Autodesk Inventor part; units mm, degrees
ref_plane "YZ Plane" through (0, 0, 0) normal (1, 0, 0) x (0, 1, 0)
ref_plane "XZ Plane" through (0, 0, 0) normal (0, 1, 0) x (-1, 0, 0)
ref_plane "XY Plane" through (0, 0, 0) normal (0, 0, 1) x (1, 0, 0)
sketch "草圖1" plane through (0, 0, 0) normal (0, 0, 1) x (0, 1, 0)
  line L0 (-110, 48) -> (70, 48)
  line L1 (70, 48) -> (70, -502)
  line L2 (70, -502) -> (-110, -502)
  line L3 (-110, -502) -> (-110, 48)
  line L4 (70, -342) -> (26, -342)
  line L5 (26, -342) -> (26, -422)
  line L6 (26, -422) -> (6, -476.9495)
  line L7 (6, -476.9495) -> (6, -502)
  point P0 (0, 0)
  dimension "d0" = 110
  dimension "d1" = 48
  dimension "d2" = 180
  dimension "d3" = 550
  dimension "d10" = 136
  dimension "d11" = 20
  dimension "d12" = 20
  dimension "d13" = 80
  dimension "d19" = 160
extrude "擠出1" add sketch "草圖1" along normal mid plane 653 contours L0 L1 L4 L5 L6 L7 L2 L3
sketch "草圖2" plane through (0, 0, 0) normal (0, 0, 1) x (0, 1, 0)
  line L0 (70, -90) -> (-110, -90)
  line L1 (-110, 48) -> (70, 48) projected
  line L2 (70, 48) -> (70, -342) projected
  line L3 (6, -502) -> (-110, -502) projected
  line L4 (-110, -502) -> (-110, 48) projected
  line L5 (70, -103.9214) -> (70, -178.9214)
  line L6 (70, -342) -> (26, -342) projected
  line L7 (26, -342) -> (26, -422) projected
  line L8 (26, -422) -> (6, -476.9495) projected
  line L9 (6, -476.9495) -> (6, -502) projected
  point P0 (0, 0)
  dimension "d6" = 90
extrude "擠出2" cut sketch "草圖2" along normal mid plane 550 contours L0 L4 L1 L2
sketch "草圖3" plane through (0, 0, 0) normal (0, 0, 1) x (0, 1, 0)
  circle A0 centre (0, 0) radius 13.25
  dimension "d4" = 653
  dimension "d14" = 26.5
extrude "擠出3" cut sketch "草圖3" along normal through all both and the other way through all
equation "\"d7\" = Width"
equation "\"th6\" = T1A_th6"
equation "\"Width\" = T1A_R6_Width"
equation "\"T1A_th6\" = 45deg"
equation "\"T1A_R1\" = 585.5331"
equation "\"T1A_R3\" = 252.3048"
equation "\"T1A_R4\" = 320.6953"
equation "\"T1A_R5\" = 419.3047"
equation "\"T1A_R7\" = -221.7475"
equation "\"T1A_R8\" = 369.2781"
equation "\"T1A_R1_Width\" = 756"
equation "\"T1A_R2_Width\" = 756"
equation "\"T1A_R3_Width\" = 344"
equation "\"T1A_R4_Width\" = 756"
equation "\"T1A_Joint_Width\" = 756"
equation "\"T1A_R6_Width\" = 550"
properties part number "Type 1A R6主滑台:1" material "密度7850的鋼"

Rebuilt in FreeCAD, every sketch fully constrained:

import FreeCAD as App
import Part
import Sketcher
from FreeCAD import Vector
Q = App.Units.Quantity

doc = App.newDocument("Part")
body = doc.addObject("PartDesign::Body", "Body")

sketch1 = body.newObject("Sketcher::SketchObject", "Sketch")
sketch1.AttachmentSupport = (doc.getObject("XY_Plane"), [""])
sketch1.MapMode = "FlatFace"
sketch1.addGeometry([
    Part.LineSegment(Vector(-48, 70, 0), Vector(-48, -110, 0)),
    Part.LineSegment(Vector(-48, -110, 0), Vector(502, -110, 0)),
    Part.LineSegment(Vector(502, -110, 0), Vector(502, 6, 0)),
    Part.LineSegment(Vector(502, 6, 0), Vector(476.9495, 6, 0)),
    Part.LineSegment(Vector(476.9495, 6, 0), Vector(422, 26, 0)),
    Part.LineSegment(Vector(422, 26, 0), Vector(342, 26, 0)),
    Part.LineSegment(Vector(342, 26, 0), Vector(342, 70, 0)),
    Part.LineSegment(Vector(342, 70, 0), Vector(-48, 70, 0)),
], False)
sketch1.addConstraint([
    Sketcher.Constraint("Coincident", 0, 2, 1, 1),
    Sketcher.Constraint("Coincident", 1, 2, 2, 1),
    Sketcher.Constraint("Coincident", 2, 2, 3, 1),
    Sketcher.Constraint("Coincident", 3, 2, 4, 1),
    Sketcher.Constraint("Coincident", 4, 2, 5, 1),
    Sketcher.Constraint("Coincident", 5, 2, 6, 1),
    Sketcher.Constraint("Coincident", 6, 2, 7, 1),
    Sketcher.Constraint("Coincident", 7, 2, 0, 1),
    Sketcher.Constraint("Vertical", 0),
    Sketcher.Constraint("Horizontal", 1),
    Sketcher.Constraint("Vertical", 2),
    Sketcher.Constraint("Horizontal", 3),
    Sketcher.Constraint("Horizontal", 5),
    Sketcher.Constraint("Vertical", 6),
    Sketcher.Constraint("Horizontal", 7),
    Sketcher.Constraint("DistanceX", 1, 1, 1, 2, 550.0),
    Sketcher.Constraint("DistanceX", 5, 2, 5, 1, 80.0),
    Sketcher.Constraint("DistanceY", 0, 2, 0, 1, 180.0),
    Sketcher.Constraint("Angle", 4, Q("160 deg")),
    Sketcher.Constraint("DistanceX", 0, 2, -1, 1, 48.0),
    Sketcher.Constraint("DistanceY", 0, 2, -1, 1, 110.0),
    Sketcher.Constraint("DistanceY", 3, 2, 4, 2, 20.0),
    Sketcher.Constraint("DistanceX", 4, 2, 2, 2, 80.0),
    Sketcher.Constraint("DistanceY", 1, 2, 4, 2, 136.0),
])
pad1 = body.newObject("PartDesign::Pad", "Pad")
pad1.Profile = sketch1
pad1.Length = 653
pad1.Midplane = True

sketch2 = body.newObject("Sketcher::SketchObject", "Sketch001")
sketch2.AttachmentSupport = (doc.getObject("XY_Plane"), [""])
sketch2.MapMode = "FlatFace"
sketch2.addGeometry([
    Part.LineSegment(Vector(90, -110, 0), Vector(90, 70, 0)),
    Part.LineSegment(Vector(90, 70, 0), Vector(-48, 70, 0)),
    Part.LineSegment(Vector(-48, 70, 0), Vector(-48, -110, 0)),
    Part.LineSegment(Vector(-48, -110, 0), Vector(90, -110, 0)),
], False)
sketch2.addConstraint([
    Sketcher.Constraint("Coincident", 0, 2, 1, 1),
    Sketcher.Constraint("Coincident", 1, 2, 2, 1),
    Sketcher.Constraint("Coincident", 2, 2, 3, 1),
    Sketcher.Constraint("Coincident", 3, 2, 0, 1),
    Sketcher.Constraint("Vertical", 0),
    Sketcher.Constraint("Horizontal", 1),
    Sketcher.Constraint("Vertical", 2),
    Sketcher.Constraint("Horizontal", 3),
    Sketcher.Constraint("DistanceX", -1, 1, 0, 2, 90.0),
    Sketcher.Constraint("DistanceX", 1, 2, 1, 1, 138.0),
    Sketcher.Constraint("DistanceY", 0, 1, 0, 2, 180.0),
    Sketcher.Constraint("DistanceY", -1, 1, 0, 2, 70.0),
])
pocket1 = body.newObject("PartDesign::Pocket", "Pocket")
pocket1.Profile = sketch2
pocket1.Length = 550
pocket1.Midplane = True

sketch3 = body.newObject("Sketcher::SketchObject", "Sketch002")
sketch3.AttachmentSupport = (doc.getObject("XY_Plane"), [""])
sketch3.MapMode = "FlatFace"
sketch3.addGeometry(Part.Circle(Vector(0, 0, 0), Vector(0, 0, 1), 13.25), False)
sketch3.addConstraint([
    Sketcher.Constraint("Coincident", 0, 3, -1, 1),
    Sketcher.Constraint("Diameter", 0, 26.5),
])
pocket2 = body.newObject("PartDesign::Pocket", "Pocket001")
pocket2.Profile = sketch3
pocket2.Type = "ThroughAll"
pocket2.Midplane = True

doc.recompute()
